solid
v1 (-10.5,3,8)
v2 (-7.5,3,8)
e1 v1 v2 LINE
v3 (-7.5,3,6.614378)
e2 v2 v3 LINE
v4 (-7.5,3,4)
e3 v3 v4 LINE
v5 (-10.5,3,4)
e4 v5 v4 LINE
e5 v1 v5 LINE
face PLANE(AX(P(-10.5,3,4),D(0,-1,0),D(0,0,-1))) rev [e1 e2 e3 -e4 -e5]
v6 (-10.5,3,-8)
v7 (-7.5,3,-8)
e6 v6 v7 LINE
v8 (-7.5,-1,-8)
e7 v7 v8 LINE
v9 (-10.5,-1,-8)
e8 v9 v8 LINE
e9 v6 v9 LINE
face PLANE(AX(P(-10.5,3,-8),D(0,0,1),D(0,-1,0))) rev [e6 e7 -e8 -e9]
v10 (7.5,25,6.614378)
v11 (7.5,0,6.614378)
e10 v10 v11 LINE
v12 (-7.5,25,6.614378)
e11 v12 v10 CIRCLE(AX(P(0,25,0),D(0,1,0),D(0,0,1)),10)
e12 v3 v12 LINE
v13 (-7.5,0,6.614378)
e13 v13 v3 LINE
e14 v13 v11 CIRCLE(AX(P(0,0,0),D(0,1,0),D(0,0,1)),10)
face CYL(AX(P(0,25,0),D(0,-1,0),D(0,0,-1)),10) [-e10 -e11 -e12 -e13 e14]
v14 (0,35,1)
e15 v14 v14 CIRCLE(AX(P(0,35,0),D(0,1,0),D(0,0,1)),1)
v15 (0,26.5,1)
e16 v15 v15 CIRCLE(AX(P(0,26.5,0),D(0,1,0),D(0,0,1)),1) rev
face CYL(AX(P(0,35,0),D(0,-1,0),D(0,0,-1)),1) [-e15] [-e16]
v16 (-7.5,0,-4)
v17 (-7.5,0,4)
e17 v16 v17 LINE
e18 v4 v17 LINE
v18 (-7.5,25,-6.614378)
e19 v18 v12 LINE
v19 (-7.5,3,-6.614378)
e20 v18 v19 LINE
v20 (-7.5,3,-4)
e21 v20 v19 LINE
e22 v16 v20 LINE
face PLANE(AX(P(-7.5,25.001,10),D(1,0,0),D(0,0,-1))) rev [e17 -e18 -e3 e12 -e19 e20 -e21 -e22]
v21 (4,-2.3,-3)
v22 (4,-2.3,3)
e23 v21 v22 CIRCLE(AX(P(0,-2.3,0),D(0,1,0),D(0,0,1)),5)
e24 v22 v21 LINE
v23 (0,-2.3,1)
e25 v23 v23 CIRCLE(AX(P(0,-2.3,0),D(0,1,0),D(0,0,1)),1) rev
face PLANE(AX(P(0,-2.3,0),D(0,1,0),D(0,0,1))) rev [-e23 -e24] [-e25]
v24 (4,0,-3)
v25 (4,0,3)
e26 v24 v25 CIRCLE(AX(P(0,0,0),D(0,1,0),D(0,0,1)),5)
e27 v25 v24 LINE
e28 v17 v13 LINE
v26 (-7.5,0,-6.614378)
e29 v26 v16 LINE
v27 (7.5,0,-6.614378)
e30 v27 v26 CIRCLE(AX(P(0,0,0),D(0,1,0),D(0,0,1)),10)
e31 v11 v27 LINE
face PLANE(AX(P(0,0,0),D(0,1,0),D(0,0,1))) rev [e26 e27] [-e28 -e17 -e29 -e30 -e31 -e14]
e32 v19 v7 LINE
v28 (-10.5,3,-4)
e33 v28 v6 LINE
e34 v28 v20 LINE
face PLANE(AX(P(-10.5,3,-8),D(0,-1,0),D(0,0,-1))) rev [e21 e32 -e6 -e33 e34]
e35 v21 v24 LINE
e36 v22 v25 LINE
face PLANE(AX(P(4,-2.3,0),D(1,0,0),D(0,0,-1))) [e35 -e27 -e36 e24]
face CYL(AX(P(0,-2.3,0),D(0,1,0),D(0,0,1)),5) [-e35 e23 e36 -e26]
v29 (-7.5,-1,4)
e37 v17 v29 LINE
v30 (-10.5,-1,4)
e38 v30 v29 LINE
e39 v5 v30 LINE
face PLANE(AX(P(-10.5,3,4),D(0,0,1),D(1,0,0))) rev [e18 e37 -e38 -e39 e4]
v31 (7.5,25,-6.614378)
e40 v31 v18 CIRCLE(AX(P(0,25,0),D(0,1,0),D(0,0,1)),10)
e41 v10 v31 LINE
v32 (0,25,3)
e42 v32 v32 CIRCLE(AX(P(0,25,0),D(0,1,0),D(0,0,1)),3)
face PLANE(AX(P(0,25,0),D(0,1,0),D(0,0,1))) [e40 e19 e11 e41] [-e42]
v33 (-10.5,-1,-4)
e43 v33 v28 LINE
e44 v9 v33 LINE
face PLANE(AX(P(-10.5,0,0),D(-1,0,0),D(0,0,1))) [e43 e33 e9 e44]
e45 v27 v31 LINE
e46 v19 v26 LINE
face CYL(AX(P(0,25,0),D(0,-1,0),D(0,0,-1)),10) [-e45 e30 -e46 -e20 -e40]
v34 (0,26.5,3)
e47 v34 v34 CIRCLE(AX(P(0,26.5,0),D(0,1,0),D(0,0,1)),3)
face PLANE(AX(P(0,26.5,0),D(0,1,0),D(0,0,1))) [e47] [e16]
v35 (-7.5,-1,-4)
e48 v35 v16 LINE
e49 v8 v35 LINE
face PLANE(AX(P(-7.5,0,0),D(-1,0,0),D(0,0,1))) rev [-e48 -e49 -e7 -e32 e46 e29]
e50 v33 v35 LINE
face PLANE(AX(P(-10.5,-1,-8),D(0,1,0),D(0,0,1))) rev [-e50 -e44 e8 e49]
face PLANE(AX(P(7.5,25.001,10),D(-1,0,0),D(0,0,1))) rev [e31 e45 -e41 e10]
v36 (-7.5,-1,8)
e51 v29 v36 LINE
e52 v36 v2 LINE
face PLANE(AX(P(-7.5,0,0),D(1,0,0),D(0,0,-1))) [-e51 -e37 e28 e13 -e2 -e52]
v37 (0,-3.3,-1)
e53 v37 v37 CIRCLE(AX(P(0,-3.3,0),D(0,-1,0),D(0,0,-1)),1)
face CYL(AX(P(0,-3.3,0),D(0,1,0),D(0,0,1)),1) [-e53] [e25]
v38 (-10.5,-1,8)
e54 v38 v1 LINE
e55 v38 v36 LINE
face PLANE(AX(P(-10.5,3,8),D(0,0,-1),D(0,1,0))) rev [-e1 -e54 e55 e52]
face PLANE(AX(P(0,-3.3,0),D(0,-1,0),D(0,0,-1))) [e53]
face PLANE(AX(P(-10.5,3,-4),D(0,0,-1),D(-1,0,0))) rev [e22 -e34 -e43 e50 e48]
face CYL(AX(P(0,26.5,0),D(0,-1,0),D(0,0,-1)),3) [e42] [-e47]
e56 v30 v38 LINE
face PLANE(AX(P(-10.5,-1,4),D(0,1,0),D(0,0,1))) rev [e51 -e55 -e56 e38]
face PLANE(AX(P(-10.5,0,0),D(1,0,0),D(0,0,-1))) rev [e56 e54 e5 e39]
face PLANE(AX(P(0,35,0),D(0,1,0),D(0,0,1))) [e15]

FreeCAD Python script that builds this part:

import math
import FreeCAD as App
import Part
import Sketcher

V = App.Vector


def add_polygon(sketch, points):
    """Adds a closed chain of lines whose ends are joined by coincident constraints."""
    first, n = sketch.GeometryCount, len(points)
    for a, b in zip(points, points[1:] + points[:1]):
        sketch.addGeometry(Part.LineSegment(App.Vector(*a, 0), App.Vector(*b, 0)), False)
    for i in range(n):
        sketch.addConstraint(Sketcher.Constraint("Coincident", first + i, 2, first + (i + 1) % n, 1))

doc = App.newDocument("Part")
params = doc.addObject("Spreadsheet::Sheet", "Params")
for row, (alias, value) in enumerate([
    ("sketch1_diameter", "20 mm"),
    ("pad1_length", "25 mm"),
    ("sketch2_height", "20 mm"),
    ("sketch2_width", "2.5 mm"),
    ("sketch3_height", "20 mm"),
    ("sketch3_width", "2.5 mm"),
    ("sketch4_diameter", "6 mm"),
    ("pad2_length", "1.5 mm"),
    ("sketch5_diameter", "2 mm"),
    ("pad3_length", "10 mm"),
    ("sketch6_radius", "5 mm"),
    ("sketch6_height", "6 mm"),
    ("pad4_length", "27.3 mm"),
    ("sketch7_diameter", "2 mm"),
    ("pad5_length", "1 mm"),
    ("sketch8_width", "4 mm"),
    ("pad6_length", "3 mm"),
], start=1):
    params.set(f"A{row}", alias)
    params.set(f"B{row}", "=" + value)
    params.setAlias(f"B{row}", alias)

body = doc.addObject("PartDesign::Body", "Body")

# Sketch on XZ plane
sketch1 = body.newObject("Sketcher::SketchObject", "Sketch")
sketch1.AttachmentSupport = (doc.getObject("XZ_Plane"), [""])
sketch1.MapMode = "FlatFace"
sketch1.addGeometry(Part.Circle(V(0, 0, 0), V(0, 0, 1), 10), False)
sketch1.addConstraint([
    Sketcher.Constraint("Coincident", 0, 3, -1, 1),
    Sketcher.Constraint("Diameter", 0, 20.0),
])
sketch1.setExpression("Constraints[1]", "Params.sketch1_diameter")
pad1 = body.newObject("PartDesign::Pad", "Pad")
pad1.Profile = sketch1
pad1.setExpression("Length", "Params.pad1_length")
pad1.Reversed = True

# Sketch on XZ plane
sketch2 = body.newObject("Sketcher::SketchObject", "Sketch001")
sketch2.AttachmentSupport = (doc.getObject("XZ_Plane"), [""])
sketch2.MapMode = "FlatFace"
add_polygon(sketch2, [(-10, 10), (-10, -10), (-7.5, -10), (-7.5, 10)])  # lines 0-3
sketch2.addConstraint([
    Sketcher.Constraint("Vertical", 0),
    Sketcher.Constraint("Horizontal", 1),
    Sketcher.Constraint("Vertical", 2),
    Sketcher.Constraint("Horizontal", 3),
    Sketcher.Constraint("DistanceY", 0, 2, 0, 1, 20.0),
    Sketcher.Constraint("DistanceX", 1, 1, 1, 2, 2.5),
    Sketcher.Constraint("DistanceX", 0, 2, -1, 1, 10.0),
    Sketcher.Constraint("DistanceY", 0, 2, -1, 1, 10.0),
])
sketch2.setExpression("Constraints[8]", "Params.sketch2_height")
sketch2.setExpression("Constraints[9]", "Params.sketch2_width")
pocket1 = body.newObject("PartDesign::Pocket", "Pocket")
pocket1.Profile = sketch2
pocket1.Type = "UpToFirst"

# Sketch on XZ plane
sketch3 = body.newObject("Sketcher::SketchObject", "Sketch002")
sketch3.AttachmentSupport = (doc.getObject("XZ_Plane"), [""])
sketch3.MapMode = "FlatFace"
add_polygon(sketch3, [(7.5, 10), (7.5, -10), (10, -10), (10, 10)])  # lines 0-3
sketch3.addConstraint([
    Sketcher.Constraint("Vertical", 0),
    Sketcher.Constraint("Horizontal", 1),
    Sketcher.Constraint("Vertical", 2),
    Sketcher.Constraint("Horizontal", 3),
    Sketcher.Constraint("DistanceY", 0, 2, 0, 1, 20.0),
    Sketcher.Constraint("DistanceX", 1, 1, 1, 2, 2.5),
    Sketcher.Constraint("DistanceY", 0, 2, -1, 1, 10.0),
    Sketcher.Constraint("DistanceX", -1, 1, 1, 2, 10.0),
])
sketch3.setExpression("Constraints[8]", "Params.sketch3_height")
sketch3.setExpression("Constraints[9]", "Params.sketch3_width")
pocket2 = body.newObject("PartDesign::Pocket", "Pocket001")
pocket2.Profile = sketch3
pocket2.Type = "UpToFirst"

# Sketch on XZ plane
sketch4 = body.newObject("Sketcher::SketchObject", "Sketch003")
sketch4.AttachmentSupport = (doc.getObject("XZ_Plane"), [""])
sketch4.MapMode = "FlatFace"
sketch4.AttachmentOffset = App.Placement(V(0, 0, -25), App.Rotation())
sketch4.addGeometry(Part.Circle(V(0, 0, 0), V(0, 0, 1), 3), False)
sketch4.addConstraint([
    Sketcher.Constraint("Coincident", 0, 3, -1, 1),
    Sketcher.Constraint("Diameter", 0, 6.0),
])
sketch4.setExpression("Constraints[1]", "Params.sketch4_diameter")
pad2 = body.newObject("PartDesign::Pad", "Pad001")
pad2.Profile = sketch4
pad2.setExpression("Length", "Params.pad2_length")
pad2.Reversed = True

# Sketch on XZ plane
sketch5 = body.newObject("Sketcher::SketchObject", "Sketch004")
sketch5.AttachmentSupport = (doc.getObject("XZ_Plane"), [""])
sketch5.MapMode = "FlatFace"
sketch5.AttachmentOffset = App.Placement(V(0, 0, -25), App.Rotation())
sketch5.addGeometry(Part.Circle(V(0, 0, 0), V(0, 0, 1), 1), False)
sketch5.addConstraint([
    Sketcher.Constraint("Coincident", 0, 3, -1, 1),
    Sketcher.Constraint("Diameter", 0, 2.0),
])
sketch5.setExpression("Constraints[1]", "Params.sketch5_diameter")
pad3 = body.newObject("PartDesign::Pad", "Pad002")
pad3.Profile = sketch5
pad3.setExpression("Length", "Params.pad3_length")
pad3.Reversed = True

# Sketch on XZ plane
sketch6 = body.newObject("Sketcher::SketchObject", "Sketch005")
sketch6.AttachmentSupport = (doc.getObject("XZ_Plane"), [""])
sketch6.MapMode = "FlatFace"
sketch6.AttachmentOffset = App.Placement(V(0, 0, -25), App.Rotation())
sketch6.addGeometry([
    Part.LineSegment(V(4, -3, 0), V(4, 3, 0)),
    Part.ArcOfCircle(Part.Circle(V(0, 0, 0), V(0, 0, 1), 5), math.radians(36.869898), math.radians(323.130102)),
], False)
sketch6.addConstraint([
    Sketcher.Constraint("Coincident", 0, 1, 1, 2),
    Sketcher.Constraint("Coincident", 1, 1, 0, 2),
    Sketcher.Constraint("Vertical", 0),
    Sketcher.Constraint("Coincident", 1, 3, -1, 1),
    Sketcher.Constraint("Radius", 1, 5.0),
    Sketcher.Constraint("DistanceY", 0, 1, 0, 2, 6.0),
])
sketch6.setExpression("Constraints[4]", "Params.sketch6_radius")
sketch6.setExpression("Constraints[5]", "Params.sketch6_height")
pad4 = body.newObject("PartDesign::Pad", "Pad003")
pad4.Profile = sketch6
pad4.setExpression("Length", "Params.pad4_length")

# Sketch on XZ plane
sketch7 = body.newObject("Sketcher::SketchObject", "Sketch006")
sketch7.AttachmentSupport = (doc.getObject("XZ_Plane"), [""])
sketch7.MapMode = "FlatFace"
sketch7.AttachmentOffset = App.Placement(V(0, 0, 3.3), App.Rotation())
sketch7.addGeometry(Part.Circle(V(0, 0, 0), V(0, 0, 1), 1), False)
sketch7.addConstraint([
    Sketcher.Constraint("Coincident", 0, 3, -1, 1),
    Sketcher.Constraint("Diameter", 0, 2.0),
])
sketch7.setExpression("Constraints[1]", "Params.sketch7_diameter")
pad5 = body.newObject("PartDesign::Pad", "Pad004")
pad5.Profile = sketch7
pad5.setExpression("Length", "Params.pad5_length")
pad5.Reversed = True

# Sketch on YZ plane
sketch8 = body.newObject("Sketcher::SketchObject", "Sketch007")
sketch8.AttachmentSupport = (doc.getObject("YZ_Plane"), [""])
sketch8.MapMode = "FlatFace"
sketch8.AttachmentOffset = App.Placement(V(0, 0, -7.5), App.Rotation())
add_polygon(sketch8, [(3, -8), (-1, -8), (-1, -4), (3, -4)])  # lines 0-3
add_polygon(sketch8, [(3, 4), (-1, 4), (-1, 8), (3, 8)])  # lines 4-7
sketch8.addConstraint([
    Sketcher.Constraint("Horizontal", 0),
    Sketcher.Constraint("Vertical", 1),
    Sketcher.Constraint("Horizontal", 2),
    Sketcher.Constraint("Vertical", 3),
    Sketcher.Constraint("Horizontal", 4),
    Sketcher.Constraint("Vertical", 5),
    Sketcher.Constraint("Horizontal", 6),
    Sketcher.Constraint("Vertical", 7),
    Sketcher.Constraint("Symmetric", 1, 2, 4, 2, -1),
    Sketcher.Constraint("Symmetric", 3, 2, 6, 2, -1),
    Sketcher.Constraint("Equal", 6, 1),
    Sketcher.Constraint("DistanceX", 0, 2, 0, 1, 4.0),
    Sketcher.Constraint("DistanceX", 0, 2, -1, 1, 1.0),
    Sketcher.Constraint("DistanceY", 0, 2, -1, 1, 8.0),
])
sketch8.setExpression("Constraints[19]", "Params.sketch8_width")
pad6 = body.newObject("PartDesign::Pad", "Pad005")
pad6.Profile = sketch8
pad6.setExpression("Length", "Params.pad6_length")
pad6.Reversed = True

doc.recompute()
